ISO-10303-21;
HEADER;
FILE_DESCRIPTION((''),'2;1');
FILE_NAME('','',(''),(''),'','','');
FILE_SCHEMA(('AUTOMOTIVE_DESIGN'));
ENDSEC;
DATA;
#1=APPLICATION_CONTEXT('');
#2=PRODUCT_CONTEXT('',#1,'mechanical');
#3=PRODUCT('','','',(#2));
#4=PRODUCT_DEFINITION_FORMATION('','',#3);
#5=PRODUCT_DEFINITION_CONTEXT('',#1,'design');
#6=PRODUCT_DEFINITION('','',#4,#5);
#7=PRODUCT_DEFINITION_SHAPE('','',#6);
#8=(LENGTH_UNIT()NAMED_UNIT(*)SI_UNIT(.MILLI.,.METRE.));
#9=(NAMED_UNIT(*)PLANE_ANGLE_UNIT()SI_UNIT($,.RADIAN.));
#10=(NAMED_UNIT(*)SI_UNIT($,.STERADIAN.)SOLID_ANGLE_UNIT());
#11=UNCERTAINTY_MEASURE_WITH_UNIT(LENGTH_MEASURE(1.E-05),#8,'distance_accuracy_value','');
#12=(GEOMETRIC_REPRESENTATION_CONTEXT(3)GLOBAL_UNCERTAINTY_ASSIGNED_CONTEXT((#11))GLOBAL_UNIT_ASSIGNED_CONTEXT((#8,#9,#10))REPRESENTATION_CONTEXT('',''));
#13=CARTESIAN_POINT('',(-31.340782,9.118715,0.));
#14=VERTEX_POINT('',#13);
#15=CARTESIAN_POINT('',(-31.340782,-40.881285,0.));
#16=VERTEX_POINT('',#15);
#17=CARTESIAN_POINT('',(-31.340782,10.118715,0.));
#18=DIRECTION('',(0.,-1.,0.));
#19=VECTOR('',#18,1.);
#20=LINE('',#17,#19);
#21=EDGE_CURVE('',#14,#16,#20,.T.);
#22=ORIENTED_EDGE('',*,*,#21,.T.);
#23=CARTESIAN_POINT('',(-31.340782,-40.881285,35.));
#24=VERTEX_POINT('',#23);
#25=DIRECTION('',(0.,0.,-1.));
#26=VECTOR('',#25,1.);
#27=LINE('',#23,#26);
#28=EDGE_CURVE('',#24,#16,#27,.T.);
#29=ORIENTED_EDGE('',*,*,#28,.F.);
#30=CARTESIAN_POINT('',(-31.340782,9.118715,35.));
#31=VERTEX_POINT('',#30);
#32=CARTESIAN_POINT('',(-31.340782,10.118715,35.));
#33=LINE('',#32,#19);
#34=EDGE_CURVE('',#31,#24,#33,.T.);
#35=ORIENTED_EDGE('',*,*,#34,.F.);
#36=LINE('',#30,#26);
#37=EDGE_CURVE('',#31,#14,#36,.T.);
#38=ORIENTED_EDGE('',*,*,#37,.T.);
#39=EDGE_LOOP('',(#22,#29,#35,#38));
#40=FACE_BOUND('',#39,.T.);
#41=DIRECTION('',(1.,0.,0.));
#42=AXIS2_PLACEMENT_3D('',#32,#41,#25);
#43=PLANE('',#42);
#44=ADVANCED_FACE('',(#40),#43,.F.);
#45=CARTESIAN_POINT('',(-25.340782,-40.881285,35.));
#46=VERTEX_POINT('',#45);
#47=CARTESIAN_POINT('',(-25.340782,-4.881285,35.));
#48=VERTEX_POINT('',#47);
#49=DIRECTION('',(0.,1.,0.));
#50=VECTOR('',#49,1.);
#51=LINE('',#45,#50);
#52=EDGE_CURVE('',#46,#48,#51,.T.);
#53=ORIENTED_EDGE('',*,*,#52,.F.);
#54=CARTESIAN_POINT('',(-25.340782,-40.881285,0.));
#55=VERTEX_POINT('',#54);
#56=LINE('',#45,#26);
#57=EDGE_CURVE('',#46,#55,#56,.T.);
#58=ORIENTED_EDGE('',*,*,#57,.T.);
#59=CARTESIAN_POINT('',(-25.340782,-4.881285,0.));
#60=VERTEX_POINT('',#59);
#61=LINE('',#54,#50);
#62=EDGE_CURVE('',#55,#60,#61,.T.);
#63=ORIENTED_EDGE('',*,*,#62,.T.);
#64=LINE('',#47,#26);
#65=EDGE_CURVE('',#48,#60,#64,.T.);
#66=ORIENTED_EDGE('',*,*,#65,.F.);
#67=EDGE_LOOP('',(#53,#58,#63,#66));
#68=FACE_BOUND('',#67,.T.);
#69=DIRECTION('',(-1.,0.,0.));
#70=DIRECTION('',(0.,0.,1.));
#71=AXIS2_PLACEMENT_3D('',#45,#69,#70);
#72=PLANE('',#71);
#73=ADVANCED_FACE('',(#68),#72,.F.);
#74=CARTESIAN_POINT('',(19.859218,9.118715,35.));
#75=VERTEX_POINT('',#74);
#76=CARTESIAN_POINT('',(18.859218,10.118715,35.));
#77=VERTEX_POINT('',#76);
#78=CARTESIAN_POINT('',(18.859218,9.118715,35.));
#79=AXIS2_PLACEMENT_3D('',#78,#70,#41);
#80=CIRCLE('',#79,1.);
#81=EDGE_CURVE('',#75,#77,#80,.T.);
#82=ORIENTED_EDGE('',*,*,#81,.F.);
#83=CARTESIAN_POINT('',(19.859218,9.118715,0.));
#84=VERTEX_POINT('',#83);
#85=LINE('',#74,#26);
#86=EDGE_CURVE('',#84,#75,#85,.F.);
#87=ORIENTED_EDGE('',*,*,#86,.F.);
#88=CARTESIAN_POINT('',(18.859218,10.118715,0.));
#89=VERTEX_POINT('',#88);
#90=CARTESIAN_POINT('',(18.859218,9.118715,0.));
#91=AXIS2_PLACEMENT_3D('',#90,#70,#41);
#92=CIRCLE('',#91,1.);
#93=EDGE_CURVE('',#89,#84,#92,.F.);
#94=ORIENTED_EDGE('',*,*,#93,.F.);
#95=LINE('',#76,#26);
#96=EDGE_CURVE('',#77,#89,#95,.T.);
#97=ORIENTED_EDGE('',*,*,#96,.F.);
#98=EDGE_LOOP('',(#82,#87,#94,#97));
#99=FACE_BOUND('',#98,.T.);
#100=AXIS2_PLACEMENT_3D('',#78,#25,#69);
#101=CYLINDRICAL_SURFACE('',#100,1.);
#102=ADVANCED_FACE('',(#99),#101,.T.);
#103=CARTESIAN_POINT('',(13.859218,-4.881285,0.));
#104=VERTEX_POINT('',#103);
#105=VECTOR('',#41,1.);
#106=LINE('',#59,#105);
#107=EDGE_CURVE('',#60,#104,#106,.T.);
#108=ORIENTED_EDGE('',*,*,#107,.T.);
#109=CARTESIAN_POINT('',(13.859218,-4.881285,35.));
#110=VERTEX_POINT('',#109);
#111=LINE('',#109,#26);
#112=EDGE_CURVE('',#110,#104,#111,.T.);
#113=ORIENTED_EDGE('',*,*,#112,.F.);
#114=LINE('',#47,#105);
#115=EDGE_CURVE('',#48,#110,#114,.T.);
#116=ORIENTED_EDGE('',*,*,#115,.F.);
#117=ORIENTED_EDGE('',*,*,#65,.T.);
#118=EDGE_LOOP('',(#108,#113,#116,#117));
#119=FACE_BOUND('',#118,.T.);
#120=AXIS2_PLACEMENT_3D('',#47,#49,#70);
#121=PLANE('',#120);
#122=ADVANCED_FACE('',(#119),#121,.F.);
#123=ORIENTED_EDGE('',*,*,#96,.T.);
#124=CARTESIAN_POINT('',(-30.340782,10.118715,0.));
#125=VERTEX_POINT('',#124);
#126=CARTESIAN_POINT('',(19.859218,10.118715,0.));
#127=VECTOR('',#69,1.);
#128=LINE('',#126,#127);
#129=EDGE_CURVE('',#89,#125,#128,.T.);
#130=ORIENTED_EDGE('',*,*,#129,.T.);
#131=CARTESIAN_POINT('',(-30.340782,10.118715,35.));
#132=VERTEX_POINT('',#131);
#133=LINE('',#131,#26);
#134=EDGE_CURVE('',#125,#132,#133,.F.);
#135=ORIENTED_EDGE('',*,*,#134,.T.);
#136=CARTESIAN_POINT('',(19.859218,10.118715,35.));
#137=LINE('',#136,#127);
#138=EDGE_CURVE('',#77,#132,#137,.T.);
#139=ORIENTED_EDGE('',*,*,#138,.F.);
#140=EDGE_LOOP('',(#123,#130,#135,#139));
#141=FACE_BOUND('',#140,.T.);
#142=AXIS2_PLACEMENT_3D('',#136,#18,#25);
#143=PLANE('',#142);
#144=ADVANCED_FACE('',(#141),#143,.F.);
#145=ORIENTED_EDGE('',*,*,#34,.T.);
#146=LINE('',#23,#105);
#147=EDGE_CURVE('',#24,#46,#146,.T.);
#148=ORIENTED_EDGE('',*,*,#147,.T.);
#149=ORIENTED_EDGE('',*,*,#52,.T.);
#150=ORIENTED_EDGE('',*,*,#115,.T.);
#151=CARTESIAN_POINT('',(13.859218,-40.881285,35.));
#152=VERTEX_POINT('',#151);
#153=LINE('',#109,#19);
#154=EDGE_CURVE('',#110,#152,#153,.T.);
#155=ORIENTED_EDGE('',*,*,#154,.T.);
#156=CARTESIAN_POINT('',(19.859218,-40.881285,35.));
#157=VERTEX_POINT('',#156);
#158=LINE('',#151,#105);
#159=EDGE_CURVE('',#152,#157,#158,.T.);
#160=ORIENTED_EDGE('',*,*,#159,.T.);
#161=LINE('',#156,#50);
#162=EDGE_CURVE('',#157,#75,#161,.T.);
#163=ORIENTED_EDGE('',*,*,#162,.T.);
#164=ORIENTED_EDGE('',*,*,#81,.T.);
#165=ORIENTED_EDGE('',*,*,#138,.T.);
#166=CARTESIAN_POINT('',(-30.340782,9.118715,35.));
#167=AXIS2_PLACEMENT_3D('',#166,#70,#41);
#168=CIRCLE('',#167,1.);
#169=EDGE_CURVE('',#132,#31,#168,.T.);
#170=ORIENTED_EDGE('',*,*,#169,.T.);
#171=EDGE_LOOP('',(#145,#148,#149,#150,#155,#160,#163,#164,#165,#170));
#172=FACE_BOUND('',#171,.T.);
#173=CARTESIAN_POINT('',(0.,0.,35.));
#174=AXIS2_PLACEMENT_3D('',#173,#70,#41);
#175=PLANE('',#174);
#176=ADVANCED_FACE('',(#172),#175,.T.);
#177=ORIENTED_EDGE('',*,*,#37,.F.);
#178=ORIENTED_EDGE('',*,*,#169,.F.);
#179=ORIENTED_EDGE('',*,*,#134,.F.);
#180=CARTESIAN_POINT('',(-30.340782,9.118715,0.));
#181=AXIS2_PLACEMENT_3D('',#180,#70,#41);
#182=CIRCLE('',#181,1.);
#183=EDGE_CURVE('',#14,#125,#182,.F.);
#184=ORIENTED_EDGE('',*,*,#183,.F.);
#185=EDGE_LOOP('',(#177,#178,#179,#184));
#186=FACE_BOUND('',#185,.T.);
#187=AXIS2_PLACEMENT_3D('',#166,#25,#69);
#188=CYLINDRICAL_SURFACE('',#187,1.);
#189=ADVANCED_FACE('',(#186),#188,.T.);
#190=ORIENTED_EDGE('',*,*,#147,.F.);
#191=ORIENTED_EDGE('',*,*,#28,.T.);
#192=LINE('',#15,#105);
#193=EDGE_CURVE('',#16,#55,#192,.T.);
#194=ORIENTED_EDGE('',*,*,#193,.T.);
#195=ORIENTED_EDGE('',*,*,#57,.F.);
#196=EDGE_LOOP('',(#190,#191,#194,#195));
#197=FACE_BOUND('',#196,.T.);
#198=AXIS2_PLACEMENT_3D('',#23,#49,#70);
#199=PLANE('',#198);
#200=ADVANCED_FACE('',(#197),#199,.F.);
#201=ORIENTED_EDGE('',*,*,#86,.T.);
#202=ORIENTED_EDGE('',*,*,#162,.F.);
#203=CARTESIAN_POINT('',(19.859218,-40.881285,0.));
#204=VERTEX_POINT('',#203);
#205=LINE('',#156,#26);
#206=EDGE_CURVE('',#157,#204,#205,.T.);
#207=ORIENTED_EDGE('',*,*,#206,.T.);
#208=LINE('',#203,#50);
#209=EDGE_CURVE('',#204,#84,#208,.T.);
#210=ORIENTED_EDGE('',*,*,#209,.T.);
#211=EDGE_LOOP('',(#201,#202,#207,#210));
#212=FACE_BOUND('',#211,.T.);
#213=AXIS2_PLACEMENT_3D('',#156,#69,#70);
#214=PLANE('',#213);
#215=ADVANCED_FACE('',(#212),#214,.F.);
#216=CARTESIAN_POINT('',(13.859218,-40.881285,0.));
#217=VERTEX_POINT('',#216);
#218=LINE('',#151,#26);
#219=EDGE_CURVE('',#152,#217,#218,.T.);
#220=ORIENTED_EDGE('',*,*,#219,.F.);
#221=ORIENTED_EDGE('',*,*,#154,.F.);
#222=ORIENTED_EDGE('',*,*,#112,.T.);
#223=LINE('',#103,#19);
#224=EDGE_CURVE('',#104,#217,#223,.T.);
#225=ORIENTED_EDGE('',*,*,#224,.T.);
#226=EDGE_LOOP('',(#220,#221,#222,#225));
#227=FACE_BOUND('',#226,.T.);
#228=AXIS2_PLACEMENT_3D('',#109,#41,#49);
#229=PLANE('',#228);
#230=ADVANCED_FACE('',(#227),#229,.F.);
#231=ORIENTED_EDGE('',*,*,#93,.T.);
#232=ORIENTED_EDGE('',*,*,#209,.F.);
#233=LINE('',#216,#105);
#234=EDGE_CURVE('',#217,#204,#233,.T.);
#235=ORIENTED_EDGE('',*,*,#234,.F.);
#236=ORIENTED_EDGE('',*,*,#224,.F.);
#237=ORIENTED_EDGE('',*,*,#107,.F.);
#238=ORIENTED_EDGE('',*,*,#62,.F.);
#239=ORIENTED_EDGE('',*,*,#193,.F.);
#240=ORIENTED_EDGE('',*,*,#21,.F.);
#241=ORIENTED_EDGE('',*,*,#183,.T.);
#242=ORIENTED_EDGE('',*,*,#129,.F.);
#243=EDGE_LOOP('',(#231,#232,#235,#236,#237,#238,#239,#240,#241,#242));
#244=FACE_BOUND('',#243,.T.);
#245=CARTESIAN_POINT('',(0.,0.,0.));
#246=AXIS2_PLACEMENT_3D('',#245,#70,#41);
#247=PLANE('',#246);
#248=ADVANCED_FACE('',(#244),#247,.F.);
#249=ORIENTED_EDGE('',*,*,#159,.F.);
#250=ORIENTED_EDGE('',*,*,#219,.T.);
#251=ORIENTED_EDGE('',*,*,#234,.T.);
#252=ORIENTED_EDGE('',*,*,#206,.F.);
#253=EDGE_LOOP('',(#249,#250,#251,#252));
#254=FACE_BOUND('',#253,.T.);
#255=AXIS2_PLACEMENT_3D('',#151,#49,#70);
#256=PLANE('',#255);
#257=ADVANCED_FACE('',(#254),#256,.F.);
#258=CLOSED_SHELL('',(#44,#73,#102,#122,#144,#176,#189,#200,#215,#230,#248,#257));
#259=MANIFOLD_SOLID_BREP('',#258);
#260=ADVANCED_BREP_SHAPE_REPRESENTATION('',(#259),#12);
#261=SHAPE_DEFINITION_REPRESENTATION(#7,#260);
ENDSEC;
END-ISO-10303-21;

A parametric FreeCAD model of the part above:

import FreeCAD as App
import Part
import Sketcher
from FreeCAD import Vector


def edges_at(feature, points):
    """Names of the edges that pass closest to the given points."""
    edges = feature.Shape.Edges
    near = lambda p: min(range(len(edges)), key=lambda i: edges[i].distToShape(Part.Vertex(*p))[0])
    return sorted({f"Edge{near(p) + 1}" for p in points})


def add_polygon(sketch, points):
    """Adds a closed chain of lines whose ends are joined by coincident constraints."""
    first, n = sketch.GeometryCount, len(points)
    for a, b in zip(points, points[1:] + points[:1]):
        sketch.addGeometry(Part.LineSegment(App.Vector(*a, 0), App.Vector(*b, 0)), False)
    for i in range(n):
        sketch.addConstraint(Sketcher.Constraint("Coincident", first + i, 2, first + (i + 1) % n, 1))

doc = App.newDocument("Part")
body = doc.addObject("PartDesign::Body", "Body")

# Sketch on XY plane
sketch1 = body.newObject("Sketcher::SketchObject", "Sketch")
sketch1.AttachmentSupport = (doc.getObject("XY_Plane"), [""])
sketch1.MapMode = "FlatFace"
add_polygon(sketch1, [(-25.340782, -40.881285), (-25.340782, -4.881285), (13.859218, -4.881285), (13.859218, -40.881285), (19.859218, -40.881285), (19.859218, 10.118715), (-31.340782, 10.118715), (-31.340782, -40.881285)])  # lines 0-7
sketch1.addConstraint([
    Sketcher.Constraint("Vertical", 0),
    Sketcher.Constraint("Horizontal", 1),
    Sketcher.Constraint("Vertical", 2),
    Sketcher.Constraint("Horizontal", 3),
    Sketcher.Constraint("Vertical", 4),
    Sketcher.Constraint("Horizontal", 5),
    Sketcher.Constraint("Vertical", 6),
    Sketcher.Constraint("Horizontal", 7),
    Sketcher.Constraint("Horizontal", 3, 2, 6, 2),
    Sketcher.Constraint("Equal", 3, 7),
    Sketcher.Constraint("DistanceX", 3, 1, 3, 2, 6.0),
    Sketcher.Constraint("DistanceY", 0, 1, 0, 2, 36.0),
    Sketcher.Constraint("DistanceY", 4, 1, 4, 2, 51.0),
    Sketcher.Constraint("DistanceX", 1, 1, 1, 2, 39.2),
    Sketcher.Constraint("DistanceX", 0, 2, -1, 1, 25.340782),
    Sketcher.Constraint("DistanceY", 0, 2, -1, 1, 4.881285),
])
pad1 = body.newObject("PartDesign::Pad", "Pad")
pad1.Profile = sketch1
pad1.Length = 35
doc.recompute()

fillet = body.newObject("PartDesign::Fillet", "Fillet")
fillet.Base = (pad1, edges_at(pad1, [(-31.341, 10.119, 17.5), (19.859, 10.119, 17.5)]))
fillet.Radius = 1

doc.recompute()
